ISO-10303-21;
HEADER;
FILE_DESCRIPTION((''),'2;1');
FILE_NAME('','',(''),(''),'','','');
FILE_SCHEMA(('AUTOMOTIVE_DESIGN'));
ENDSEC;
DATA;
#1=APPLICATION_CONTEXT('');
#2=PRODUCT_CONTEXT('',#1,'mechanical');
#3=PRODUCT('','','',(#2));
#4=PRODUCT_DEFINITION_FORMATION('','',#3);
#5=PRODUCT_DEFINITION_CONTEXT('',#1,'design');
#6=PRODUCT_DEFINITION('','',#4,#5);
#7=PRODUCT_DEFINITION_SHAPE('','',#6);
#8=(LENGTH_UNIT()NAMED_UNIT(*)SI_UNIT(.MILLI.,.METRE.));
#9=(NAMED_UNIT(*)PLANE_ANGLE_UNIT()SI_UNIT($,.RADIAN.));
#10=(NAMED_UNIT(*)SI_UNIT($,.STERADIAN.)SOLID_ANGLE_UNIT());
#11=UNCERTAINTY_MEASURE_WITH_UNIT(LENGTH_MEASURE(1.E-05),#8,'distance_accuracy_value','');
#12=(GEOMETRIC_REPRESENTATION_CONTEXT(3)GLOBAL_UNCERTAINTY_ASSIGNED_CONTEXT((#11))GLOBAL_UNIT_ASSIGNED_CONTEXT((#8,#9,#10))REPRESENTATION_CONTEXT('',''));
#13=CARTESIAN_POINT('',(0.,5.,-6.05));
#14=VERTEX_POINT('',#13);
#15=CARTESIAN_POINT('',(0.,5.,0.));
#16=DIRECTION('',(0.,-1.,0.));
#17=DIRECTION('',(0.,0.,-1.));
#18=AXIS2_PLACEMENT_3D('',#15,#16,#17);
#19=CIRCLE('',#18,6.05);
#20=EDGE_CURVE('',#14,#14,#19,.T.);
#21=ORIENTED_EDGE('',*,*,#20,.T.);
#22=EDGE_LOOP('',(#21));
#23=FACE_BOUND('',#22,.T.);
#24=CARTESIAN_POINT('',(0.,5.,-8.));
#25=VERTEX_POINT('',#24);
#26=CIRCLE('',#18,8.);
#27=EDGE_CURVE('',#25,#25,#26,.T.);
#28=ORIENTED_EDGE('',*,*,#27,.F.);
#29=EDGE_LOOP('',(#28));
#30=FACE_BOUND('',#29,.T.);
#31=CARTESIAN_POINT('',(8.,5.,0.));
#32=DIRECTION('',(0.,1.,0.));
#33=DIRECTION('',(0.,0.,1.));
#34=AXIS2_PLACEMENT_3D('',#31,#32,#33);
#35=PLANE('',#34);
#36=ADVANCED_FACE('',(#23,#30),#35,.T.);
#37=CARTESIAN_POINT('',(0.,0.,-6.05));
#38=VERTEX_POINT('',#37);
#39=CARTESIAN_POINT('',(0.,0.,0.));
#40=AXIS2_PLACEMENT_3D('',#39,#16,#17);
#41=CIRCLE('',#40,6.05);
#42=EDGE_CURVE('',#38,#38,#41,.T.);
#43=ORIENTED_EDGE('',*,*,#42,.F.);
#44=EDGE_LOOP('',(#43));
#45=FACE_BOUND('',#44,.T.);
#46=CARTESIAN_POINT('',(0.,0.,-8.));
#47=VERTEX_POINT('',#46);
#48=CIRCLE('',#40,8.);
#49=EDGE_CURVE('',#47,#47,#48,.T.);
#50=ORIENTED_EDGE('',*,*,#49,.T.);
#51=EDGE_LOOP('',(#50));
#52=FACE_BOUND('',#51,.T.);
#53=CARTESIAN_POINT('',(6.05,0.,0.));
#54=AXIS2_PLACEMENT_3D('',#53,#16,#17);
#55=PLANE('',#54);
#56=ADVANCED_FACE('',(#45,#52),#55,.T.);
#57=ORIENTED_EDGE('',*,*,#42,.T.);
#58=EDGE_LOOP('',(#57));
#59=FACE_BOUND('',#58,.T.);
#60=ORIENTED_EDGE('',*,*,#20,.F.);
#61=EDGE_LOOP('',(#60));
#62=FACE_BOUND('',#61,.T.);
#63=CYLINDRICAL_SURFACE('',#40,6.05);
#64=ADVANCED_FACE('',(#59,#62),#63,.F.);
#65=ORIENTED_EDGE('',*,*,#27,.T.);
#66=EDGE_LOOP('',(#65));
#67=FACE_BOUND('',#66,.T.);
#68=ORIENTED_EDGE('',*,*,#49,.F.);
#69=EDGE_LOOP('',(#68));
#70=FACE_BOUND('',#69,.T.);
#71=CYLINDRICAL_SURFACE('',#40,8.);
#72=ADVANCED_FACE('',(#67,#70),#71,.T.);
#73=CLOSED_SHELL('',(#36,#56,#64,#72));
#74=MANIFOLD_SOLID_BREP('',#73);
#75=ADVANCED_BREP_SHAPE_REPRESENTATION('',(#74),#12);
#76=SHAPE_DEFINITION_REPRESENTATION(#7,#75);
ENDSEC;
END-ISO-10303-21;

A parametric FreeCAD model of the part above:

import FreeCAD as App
import Part
import Sketcher

V = App.Vector
Q = App.Units.Quantity

doc = App.newDocument("Part")
body = doc.addObject("PartDesign::Body", "Body")

# Sketch on XY plane
sketch1 = doc.addObject("Sketcher::SketchObject", "Sketch")
body.addObject(sketch1)
sketch1.AttachmentSupport = (doc.XY_Plane, [""])
sketch1.MapMode = "FlatFace"
sketch1.addGeometry([
    Part.LineSegment(V(6.05, 5, 0), V(6.05, 0, 0)),
    Part.LineSegment(V(6.05, 0, 0), V(8, 0, 0)),
    Part.LineSegment(V(8, 0, 0), V(8, 5, 0)),
    Part.LineSegment(V(8, 5, 0), V(6.05, 5, 0)),
], False)
sketch1.addConstraint([
    Sketcher.Constraint("Coincident", 0, 2, 1, 1),
    Sketcher.Constraint("Coincident", 1, 2, 2, 1),
    Sketcher.Constraint("Coincident", 2, 2, 3, 1),
    Sketcher.Constraint("Coincident", 3, 2, 0, 1),
    Sketcher.Constraint("Vertical", 0),
    Sketcher.Constraint("Horizontal", 1),
    Sketcher.Constraint("Vertical", 2),
    Sketcher.Constraint("Horizontal", 3),
    Sketcher.Constraint("PointOnObject", 0, 2, -1),
    Sketcher.Constraint("DistanceY", 0, 2, 0, 1, Q("5 mm")),
    Sketcher.Constraint("DistanceX", -1, 1, 1, 2, Q("8 mm")),
    Sketcher.Constraint("DistanceX", 1, 1, 1, 2, Q("1.95 mm")),
])
revolution = doc.addObject("PartDesign::Revolution", "Revolution")
body.addObject(revolution)
revolution.Profile = sketch1
revolution.ReferenceAxis = (sketch1, ["V_Axis"])
revolution.Angle = 360

doc.recompute()
